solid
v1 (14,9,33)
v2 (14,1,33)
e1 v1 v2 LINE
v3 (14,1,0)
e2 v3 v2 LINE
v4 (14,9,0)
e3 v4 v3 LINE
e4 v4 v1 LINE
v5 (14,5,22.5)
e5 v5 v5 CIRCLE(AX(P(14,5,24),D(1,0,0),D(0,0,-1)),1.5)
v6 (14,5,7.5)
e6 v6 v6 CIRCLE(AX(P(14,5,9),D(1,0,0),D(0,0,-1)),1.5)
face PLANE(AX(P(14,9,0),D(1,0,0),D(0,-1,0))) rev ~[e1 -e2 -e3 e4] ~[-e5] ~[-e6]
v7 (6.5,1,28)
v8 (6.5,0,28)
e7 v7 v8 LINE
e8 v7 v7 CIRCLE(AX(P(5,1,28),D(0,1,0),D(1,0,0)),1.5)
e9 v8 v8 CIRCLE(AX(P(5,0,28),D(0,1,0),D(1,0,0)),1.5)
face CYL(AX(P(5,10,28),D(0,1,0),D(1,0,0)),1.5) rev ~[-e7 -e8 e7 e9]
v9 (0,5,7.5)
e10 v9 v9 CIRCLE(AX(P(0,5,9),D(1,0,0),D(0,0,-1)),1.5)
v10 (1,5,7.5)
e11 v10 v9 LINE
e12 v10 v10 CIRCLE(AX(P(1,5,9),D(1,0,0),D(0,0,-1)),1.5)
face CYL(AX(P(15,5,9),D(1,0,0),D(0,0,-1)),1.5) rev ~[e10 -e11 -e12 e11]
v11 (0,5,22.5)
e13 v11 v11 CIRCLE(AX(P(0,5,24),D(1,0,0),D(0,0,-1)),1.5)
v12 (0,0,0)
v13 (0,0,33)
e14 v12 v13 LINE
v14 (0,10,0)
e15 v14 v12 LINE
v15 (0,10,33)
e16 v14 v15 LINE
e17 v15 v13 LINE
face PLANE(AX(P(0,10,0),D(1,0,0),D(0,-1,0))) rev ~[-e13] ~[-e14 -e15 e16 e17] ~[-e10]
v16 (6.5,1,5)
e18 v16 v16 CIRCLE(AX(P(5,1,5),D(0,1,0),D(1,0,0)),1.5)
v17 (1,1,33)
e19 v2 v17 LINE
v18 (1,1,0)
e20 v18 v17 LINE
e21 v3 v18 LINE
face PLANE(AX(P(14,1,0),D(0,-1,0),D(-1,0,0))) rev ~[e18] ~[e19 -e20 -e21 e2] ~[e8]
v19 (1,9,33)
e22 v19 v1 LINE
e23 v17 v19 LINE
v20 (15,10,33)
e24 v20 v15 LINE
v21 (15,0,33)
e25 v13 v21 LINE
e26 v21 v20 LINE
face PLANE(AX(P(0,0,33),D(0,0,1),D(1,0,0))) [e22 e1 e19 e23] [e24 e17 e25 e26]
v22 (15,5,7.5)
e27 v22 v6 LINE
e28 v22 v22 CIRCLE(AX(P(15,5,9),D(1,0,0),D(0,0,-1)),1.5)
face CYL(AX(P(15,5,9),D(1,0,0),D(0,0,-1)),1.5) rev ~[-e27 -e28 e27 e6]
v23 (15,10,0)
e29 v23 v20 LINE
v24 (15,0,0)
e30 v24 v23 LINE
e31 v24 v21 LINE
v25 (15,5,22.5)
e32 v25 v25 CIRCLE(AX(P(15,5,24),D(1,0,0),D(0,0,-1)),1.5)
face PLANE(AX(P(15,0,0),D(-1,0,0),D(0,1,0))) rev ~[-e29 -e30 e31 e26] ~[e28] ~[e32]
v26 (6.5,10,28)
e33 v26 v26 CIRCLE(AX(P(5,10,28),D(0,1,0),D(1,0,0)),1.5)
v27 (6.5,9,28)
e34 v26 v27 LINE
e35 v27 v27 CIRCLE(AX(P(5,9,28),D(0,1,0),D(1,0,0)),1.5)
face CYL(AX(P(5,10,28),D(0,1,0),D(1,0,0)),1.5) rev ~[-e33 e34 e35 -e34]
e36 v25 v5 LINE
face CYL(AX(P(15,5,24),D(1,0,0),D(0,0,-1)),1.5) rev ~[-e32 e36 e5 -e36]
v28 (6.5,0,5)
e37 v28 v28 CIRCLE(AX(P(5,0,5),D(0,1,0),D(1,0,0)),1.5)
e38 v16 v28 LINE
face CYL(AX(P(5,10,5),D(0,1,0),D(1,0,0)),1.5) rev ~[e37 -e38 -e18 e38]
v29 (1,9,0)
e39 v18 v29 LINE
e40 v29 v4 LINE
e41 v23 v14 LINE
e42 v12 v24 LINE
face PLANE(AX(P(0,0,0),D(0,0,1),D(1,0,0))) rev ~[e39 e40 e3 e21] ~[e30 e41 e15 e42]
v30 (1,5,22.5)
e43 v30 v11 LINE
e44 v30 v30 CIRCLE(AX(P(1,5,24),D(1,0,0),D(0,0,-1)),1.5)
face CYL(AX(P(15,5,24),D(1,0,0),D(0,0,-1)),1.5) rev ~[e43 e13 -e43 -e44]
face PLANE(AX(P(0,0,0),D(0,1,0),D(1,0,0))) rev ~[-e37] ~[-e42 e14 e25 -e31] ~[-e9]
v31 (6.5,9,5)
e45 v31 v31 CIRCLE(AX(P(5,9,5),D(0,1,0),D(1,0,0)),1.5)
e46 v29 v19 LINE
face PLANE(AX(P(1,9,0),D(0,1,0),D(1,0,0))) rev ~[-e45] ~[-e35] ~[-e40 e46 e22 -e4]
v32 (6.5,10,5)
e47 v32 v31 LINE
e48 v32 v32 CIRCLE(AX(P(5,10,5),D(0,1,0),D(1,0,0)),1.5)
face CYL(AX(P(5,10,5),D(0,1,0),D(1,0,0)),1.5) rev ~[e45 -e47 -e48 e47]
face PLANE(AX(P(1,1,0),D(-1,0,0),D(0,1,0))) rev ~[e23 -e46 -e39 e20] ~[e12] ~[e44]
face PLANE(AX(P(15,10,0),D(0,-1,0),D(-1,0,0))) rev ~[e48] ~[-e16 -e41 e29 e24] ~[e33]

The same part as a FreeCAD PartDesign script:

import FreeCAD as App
import Part
import Sketcher
from FreeCAD import Vector
Q = App.Units.Quantity


def add_polygon(sketch, points):
    """Adds a closed chain of lines whose ends are joined by coincident constraints."""
    first, n = sketch.GeometryCount, len(points)
    for a, b in zip(points, points[1:] + points[:1]):
        sketch.addGeometry(Part.LineSegment(App.Vector(*a, 0), App.Vector(*b, 0)), False)
    for i in range(n):
        sketch.addConstraint(Sketcher.Constraint("Coincident", first + i, 2, first + (i + 1) % n, 1))

doc = App.newDocument("Part")
body = doc.addObject("PartDesign::Body", "Body")

sketch1 = doc.addObject("Sketcher::SketchObject", "Sketch")
body.addObject(sketch1)
sketch1.AttachmentSupport = (doc.XY_Plane, [""])
sketch1.MapMode = "FlatFace"
add_polygon(sketch1, [(0, 10), (0, 0), (15, 0), (15, 10)])
add_polygon(sketch1, [(1, 1), (1, 9), (14, 9), (14, 1)])
sketch1.addConstraint([
    Sketcher.Constraint("Vertical", 0),
    Sketcher.Constraint("Horizontal", 1),
    Sketcher.Constraint("Vertical", 2),
    Sketcher.Constraint("Horizontal", 3),
    Sketcher.Constraint("Vertical", 4),
    Sketcher.Constraint("Horizontal", 5),
    Sketcher.Constraint("Vertical", 6),
    Sketcher.Constraint("Horizontal", 7),
    Sketcher.Constraint("Coincident", 0, 2, -1, 1),
    Sketcher.Constraint("DistanceX", 1, 1, 1, 2, Q("15 mm")),
    Sketcher.Constraint("DistanceX", 5, 1, 5, 2, Q("13 mm")),
    Sketcher.Constraint("DistanceY", 0, 2, 0, 1, Q("10 mm")),
    Sketcher.Constraint("DistanceY", 4, 1, 4, 2, Q("8 mm")),
    Sketcher.Constraint("DistanceX", -1, 1, 4, 2, Q("1 mm")),
    Sketcher.Constraint("DistanceY", -1, 1, 6, 2, Q("1 mm")),
])
pad1 = doc.addObject("PartDesign::Pad", "Pad")
body.addObject(pad1)
pad1.Profile = sketch1
pad1.Length = 33

sketch2 = doc.addObject("Sketcher::SketchObject", "Sketch001")
body.addObject(sketch2)
sketch2.AttachmentSupport = (doc.XZ_Plane, [""])
sketch2.MapMode = "FlatFace"
sketch2.AttachmentOffset = App.Placement(Vector(0, 0, -10), App.Rotation())
sketch2.addGeometry([
    Part.Circle(Vector(5, 5, 0), Vector(0, 0, 1), 1.5),
    Part.Circle(Vector(5, 28, 0), Vector(0, 0, 1), 1.5),
], False)
sketch2.addConstraint([
    Sketcher.Constraint("Equal", 0, 1),
    Sketcher.Constraint("Vertical", 0, 3, 1, 3),
    Sketcher.Constraint("Diameter", 0, Q("3 mm")),
    Sketcher.Constraint("DistanceX", -1, 1, 0, 3, Q("5 mm")),
    Sketcher.Constraint("DistanceY", -1, 1, 0, 3, Q("5 mm")),
    Sketcher.Constraint("DistanceY", -1, 1, 1, 3, Q("28 mm")),
])
pocket1 = doc.addObject("PartDesign::Pocket", "Pocket")
body.addObject(pocket1)
pocket1.Profile = sketch2
pocket1.Length = 10
pocket1.Reversed = True

sketch3 = doc.addObject("Sketcher::SketchObject", "Sketch002")
body.addObject(sketch3)
sketch3.AttachmentSupport = (doc.YZ_Plane, [""])
sketch3.MapMode = "FlatFace"
sketch3.AttachmentOffset = App.Placement(Vector(0, 0, 15), App.Rotation())
sketch3.addGeometry([
    Part.Circle(Vector(5, 9, 0), Vector(0, 0, 1), 1.5),
    Part.Circle(Vector(5, 24, 0), Vector(0, 0, 1), 1.5),
], False)
sketch3.addConstraint([
    Sketcher.Constraint("Equal", 0, 1),
    Sketcher.Constraint("Vertical", 0, 3, 1, 3),
    Sketcher.Constraint("Diameter", 0, Q("3 mm")),
    Sketcher.Constraint("DistanceX", -1, 1, 0, 3, Q("5 mm")),
    Sketcher.Constraint("DistanceY", -1, 1, 0, 3, Q("9 mm")),
    Sketcher.Constraint("DistanceY", -1, 1, 1, 3, Q("24 mm")),
])
pocket2 = doc.addObject("PartDesign::Pocket", "Pocket001")
body.addObject(pocket2)
pocket2.Profile = sketch3
pocket2.Length = 15

doc.recompute()
